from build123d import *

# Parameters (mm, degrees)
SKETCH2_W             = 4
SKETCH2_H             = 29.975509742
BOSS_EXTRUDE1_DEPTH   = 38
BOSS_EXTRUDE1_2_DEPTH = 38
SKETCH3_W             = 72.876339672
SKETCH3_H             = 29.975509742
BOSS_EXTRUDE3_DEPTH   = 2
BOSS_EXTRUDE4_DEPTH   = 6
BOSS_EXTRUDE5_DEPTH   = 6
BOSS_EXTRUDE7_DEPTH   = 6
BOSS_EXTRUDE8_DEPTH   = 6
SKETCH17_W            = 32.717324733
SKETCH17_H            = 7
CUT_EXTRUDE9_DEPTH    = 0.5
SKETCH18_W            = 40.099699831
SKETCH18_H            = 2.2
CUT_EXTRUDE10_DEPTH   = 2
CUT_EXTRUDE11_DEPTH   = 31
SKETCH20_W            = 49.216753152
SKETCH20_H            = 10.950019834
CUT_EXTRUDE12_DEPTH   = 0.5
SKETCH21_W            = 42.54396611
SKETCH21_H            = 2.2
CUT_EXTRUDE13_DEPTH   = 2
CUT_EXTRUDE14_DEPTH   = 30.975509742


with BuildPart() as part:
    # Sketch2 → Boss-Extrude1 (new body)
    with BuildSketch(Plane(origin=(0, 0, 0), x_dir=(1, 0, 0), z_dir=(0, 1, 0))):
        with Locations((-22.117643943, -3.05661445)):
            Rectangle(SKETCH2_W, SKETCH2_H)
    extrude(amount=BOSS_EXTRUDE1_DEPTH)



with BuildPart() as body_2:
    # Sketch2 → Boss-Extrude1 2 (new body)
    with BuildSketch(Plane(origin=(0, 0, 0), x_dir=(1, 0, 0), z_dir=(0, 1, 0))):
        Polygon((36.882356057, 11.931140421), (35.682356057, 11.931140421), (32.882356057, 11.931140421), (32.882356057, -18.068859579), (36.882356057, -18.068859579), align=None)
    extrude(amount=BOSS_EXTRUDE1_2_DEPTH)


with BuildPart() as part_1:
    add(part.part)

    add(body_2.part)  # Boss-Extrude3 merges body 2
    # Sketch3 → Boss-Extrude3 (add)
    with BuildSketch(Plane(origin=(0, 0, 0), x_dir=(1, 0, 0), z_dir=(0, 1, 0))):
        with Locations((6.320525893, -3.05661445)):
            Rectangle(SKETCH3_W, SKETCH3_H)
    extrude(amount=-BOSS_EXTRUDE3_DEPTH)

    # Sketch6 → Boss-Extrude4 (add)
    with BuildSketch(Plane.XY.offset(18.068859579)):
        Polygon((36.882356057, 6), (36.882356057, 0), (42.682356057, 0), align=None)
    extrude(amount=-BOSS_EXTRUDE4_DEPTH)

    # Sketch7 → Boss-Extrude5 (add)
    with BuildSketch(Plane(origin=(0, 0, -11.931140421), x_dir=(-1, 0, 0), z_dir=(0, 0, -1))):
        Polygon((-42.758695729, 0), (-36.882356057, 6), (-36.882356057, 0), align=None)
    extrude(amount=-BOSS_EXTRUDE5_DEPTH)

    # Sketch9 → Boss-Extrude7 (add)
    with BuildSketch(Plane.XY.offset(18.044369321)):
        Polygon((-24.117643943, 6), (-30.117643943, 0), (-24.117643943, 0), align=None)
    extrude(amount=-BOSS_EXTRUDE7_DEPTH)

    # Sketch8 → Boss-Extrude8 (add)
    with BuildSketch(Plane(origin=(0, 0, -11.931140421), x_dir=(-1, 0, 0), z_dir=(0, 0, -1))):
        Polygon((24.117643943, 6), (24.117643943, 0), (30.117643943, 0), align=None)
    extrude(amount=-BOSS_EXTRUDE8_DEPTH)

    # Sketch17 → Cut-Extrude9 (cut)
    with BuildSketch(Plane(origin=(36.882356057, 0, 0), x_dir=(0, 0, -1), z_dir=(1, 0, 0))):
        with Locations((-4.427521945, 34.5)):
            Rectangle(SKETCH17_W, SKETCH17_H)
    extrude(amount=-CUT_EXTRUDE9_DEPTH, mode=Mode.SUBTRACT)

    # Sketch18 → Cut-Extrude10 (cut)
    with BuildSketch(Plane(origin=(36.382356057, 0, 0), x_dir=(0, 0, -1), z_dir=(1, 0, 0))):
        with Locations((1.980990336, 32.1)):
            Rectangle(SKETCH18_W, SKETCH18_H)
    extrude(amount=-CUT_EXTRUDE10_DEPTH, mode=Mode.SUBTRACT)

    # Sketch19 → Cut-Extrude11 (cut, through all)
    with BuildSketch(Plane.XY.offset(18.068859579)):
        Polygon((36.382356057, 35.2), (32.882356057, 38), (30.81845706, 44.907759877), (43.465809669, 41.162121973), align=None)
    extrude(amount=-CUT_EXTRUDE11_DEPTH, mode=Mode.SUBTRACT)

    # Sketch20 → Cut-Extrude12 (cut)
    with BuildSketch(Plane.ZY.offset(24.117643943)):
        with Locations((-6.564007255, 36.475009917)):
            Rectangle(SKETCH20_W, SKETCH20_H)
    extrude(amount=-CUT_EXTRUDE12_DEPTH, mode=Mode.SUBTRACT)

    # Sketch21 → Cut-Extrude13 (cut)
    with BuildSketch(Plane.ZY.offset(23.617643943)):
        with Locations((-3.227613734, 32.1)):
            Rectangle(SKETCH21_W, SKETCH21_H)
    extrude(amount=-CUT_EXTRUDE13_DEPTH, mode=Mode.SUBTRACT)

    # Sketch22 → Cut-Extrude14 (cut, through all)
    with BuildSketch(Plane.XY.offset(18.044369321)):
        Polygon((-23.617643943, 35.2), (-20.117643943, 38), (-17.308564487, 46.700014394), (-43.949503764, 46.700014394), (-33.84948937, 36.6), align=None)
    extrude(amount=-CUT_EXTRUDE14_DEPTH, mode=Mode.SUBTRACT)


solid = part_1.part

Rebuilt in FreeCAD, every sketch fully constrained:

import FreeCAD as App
import Part
import Sketcher
from FreeCAD import Vector
Q = App.Units.Quantity


def add_polygon(sketch, points):
    """Adds a closed chain of lines whose ends are joined by coincident constraints."""
    first, n = sketch.GeometryCount, len(points)
    for a, b in zip(points, points[1:] + points[:1]):
        sketch.addGeometry(Part.LineSegment(App.Vector(*a, 0), App.Vector(*b, 0)), False)
    for i in range(n):
        sketch.addConstraint(Sketcher.Constraint("Coincident", first + i, 2, first + (i + 1) % n, 1))

doc = App.newDocument("Part")
body = doc.addObject("PartDesign::Body", "Body")

sketch1 = body.newObject("Sketcher::SketchObject", "Sketch")
sketch1.AttachmentSupport = (doc.getObject("XZ_Plane"), [""])
sketch1.MapMode = "FlatFace"
add_polygon(sketch1, [(-24.1, -11.9), (-24.1, 18), (-20.1, 18), (-20.1, -11.9)])
sketch1.addConstraint([
    Sketcher.Constraint("Vertical", 0),
    Sketcher.Constraint("Horizontal", 1),
    Sketcher.Constraint("Vertical", 2),
    Sketcher.Constraint("Horizontal", 3),
    Sketcher.Constraint("DistanceX", 1, 1, 1, 2, Q("4 mm")),
    Sketcher.Constraint("DistanceY", 0, 1, 0, 2, Q("29.97551 mm")),
    Sketcher.Constraint("DistanceY", -1, 1, 0, 2, Q("18.044369 mm")),
    Sketcher.Constraint("DistanceX", 0, 2, -1, 1, Q("24.117644 mm")),
])
pad1 = body.newObject("PartDesign::Pad", "Pad")
pad1.Profile = sketch1
pad1.Length = 38
pad1.Reversed = True
body2 = doc.addObject("PartDesign::Body", "Body001")

sketch2 = body2.newObject("Sketcher::SketchObject", "Sketch001")
sketch2.AttachmentSupport = (doc.getObject("XZ_Plane001"), [""])
sketch2.MapMode = "FlatFace"
add_polygon(sketch2, [(36.9, -11.9), (32.9, -11.9), (32.9, 18.1), (36.9, 18.1)])
sketch2.addConstraint([
    Sketcher.Constraint("Horizontal", 0),
    Sketcher.Constraint("Vertical", 1),
    Sketcher.Constraint("Horizontal", 2),
    Sketcher.Constraint("Vertical", 3),
    Sketcher.Constraint("DistanceX", 0, 2, 0, 1, Q("4 mm")),
    Sketcher.Constraint("DistanceY", 1, 1, 1, 2, Q("30 mm")),
    Sketcher.Constraint("DistanceY", 0, 2, -1, 1, Q("11.93114 mm")),
    Sketcher.Constraint("DistanceX", -1, 1, 0, 2, Q("32.882356 mm")),
])
pad2 = body2.newObject("PartDesign::Pad", "Pad001")
pad2.Profile = sketch2
pad2.Length = 38
pad2.Reversed = True
body.AllowCompound = True
doc.recompute()

boolean = body.newObject("PartDesign::Boolean", "Boolean")
boolean.Type = "Fuse"
boolean.addObjects([body2])

sketch3 = body.newObject("Sketcher::SketchObject", "Sketch002")
sketch3.AttachmentSupport = (doc.getObject("XZ_Plane"), [""])
sketch3.MapMode = "FlatFace"
add_polygon(sketch3, [(-30, -12), (-30, 18), (43, 18), (43, -12)])
sketch3.addConstraint([
    Sketcher.Constraint("Vertical", 0),
    Sketcher.Constraint("Horizontal", 1),
    Sketcher.Constraint("Vertical", 2),
    Sketcher.Constraint("Horizontal", 3),
    Sketcher.Constraint("DistanceX", 1, 1, 1, 2, Q("72.87634 mm")),
    Sketcher.Constraint("DistanceY", 0, 1, 0, 2, Q("29.97551 mm")),
    Sketcher.Constraint("DistanceY", -1, 1, 0, 2, Q("18.044369 mm")),
    Sketcher.Constraint("DistanceX", 0, 2, -1, 1, Q("30.117644 mm")),
])
pad3 = body.newObject("PartDesign::Pad", "Pad002")
pad3.Profile = sketch3
pad3.Length = 2

sketch4 = body.newObject("Sketcher::SketchObject", "Sketch003")
sketch4.AttachmentSupport = (doc.getObject("XY_Plane"), [""])
sketch4.MapMode = "FlatFace"
sketch4.AttachmentOffset = App.Placement(Vector(0, 0, 18.06886), App.Rotation())
add_polygon(sketch4, [(37, 6), (37, 0), (43, 0)])
sketch4.addConstraint([
    Sketcher.Constraint("Vertical", 0),
    Sketcher.Constraint("Horizontal", 1),
    Sketcher.Constraint("PointOnObject", 0, 2, -1),
    Sketcher.Constraint("DistanceY", 0, 2, 0, 1, Q("6 mm")),
    Sketcher.Constraint("DistanceX", 1, 1, 1, 2, Q("5.8 mm")),
    Sketcher.Constraint("DistanceX", -1, 1, 0, 2, Q("36.882356 mm")),
])
pad4 = body.newObject("PartDesign::Pad", "Pad003")
pad4.Profile = sketch4
pad4.Length = 6
pad4.Reversed = True

sketch5 = body.newObject("Sketcher::SketchObject", "Sketch004")
sketch5.AttachmentSupport = (doc.getObject("XY_Plane"), [""])
sketch5.MapMode = "FlatFace"
sketch5.AttachmentOffset = App.Placement(Vector(0, 0, -11.93114), App.Rotation())
add_polygon(sketch5, [(37, 6), (43, 0), (37, 0)])
sketch5.addConstraint([
    Sketcher.Constraint("Horizontal", 1),
    Sketcher.Constraint("Vertical", 2),
    Sketcher.Constraint("PointOnObject", 0, 2, -1),
    Sketcher.Constraint("DistanceY", 2, 1, 2, 2, Q("6 mm")),
    Sketcher.Constraint("DistanceX", 1, 2, 1, 1, Q("5.87634 mm")),
    Sketcher.Constraint("DistanceX", -1, 1, 0, 2, Q("42.758696 mm")),
])
pad5 = body.newObject("PartDesign::Pad", "Pad004")
pad5.Profile = sketch5
pad5.Length = 6

sketch6 = body.newObject("Sketcher::SketchObject", "Sketch005")
sketch6.AttachmentSupport = (doc.getObject("XY_Plane"), [""])
sketch6.MapMode = "FlatFace"
sketch6.AttachmentOffset = App.Placement(Vector(0, 0, 18.044369), App.Rotation())
add_polygon(sketch6, [(-24, 6), (-30, 0), (-24, 0)])
sketch6.addConstraint([
    Sketcher.Constraint("Horizontal", 1),
    Sketcher.Constraint("Vertical", 2),
    Sketcher.Constraint("PointOnObject", 0, 2, -1),
    Sketcher.Constraint("Equal", 1, 2),
    Sketcher.Constraint("DistanceX", 1, 1, 1, 2, Q("6 mm")),
    Sketcher.Constraint("DistanceX", 0, 2, -1, 1, Q("30.117644 mm")),
])
pad6 = body.newObject("PartDesign::Pad", "Pad005")
pad6.Profile = sketch6
pad6.Length = 6
pad6.Reversed = True

sketch7 = body.newObject("Sketcher::SketchObject", "Sketch006")
sketch7.AttachmentSupport = (doc.getObject("XY_Plane"), [""])
sketch7.MapMode = "FlatFace"
sketch7.AttachmentOffset = App.Placement(Vector(0, 0, -11.93114), App.Rotation())
add_polygon(sketch7, [(-24, 6), (-24, 0), (-30, 0)])
sketch7.addConstraint([
    Sketcher.Constraint("Vertical", 0),
    Sketcher.Constraint("Horizontal", 1),
    Sketcher.Constraint("PointOnObject", 0, 2, -1),
    Sketcher.Constraint("Equal", 1, 0),
    Sketcher.Constraint("DistanceX", 1, 2, 1, 1, Q("6 mm")),
    Sketcher.Constraint("DistanceX", 0, 2, -1, 1, Q("24.117644 mm")),
])
pad7 = body.newObject("PartDesign::Pad", "Pad006")
pad7.Profile = sketch7
pad7.Length = 6

sketch8 = body.newObject("Sketcher::SketchObject", "Sketch007")
sketch8.AttachmentSupport = (doc.getObject("YZ_Plane"), [""])
sketch8.MapMode = "FlatFace"
sketch8.AttachmentOffset = App.Placement(Vector(0, 0, 36.882356), App.Rotation())
add_polygon(sketch8, [(38, 21), (31, 21), (31, -12), (38, -12)])
sketch8.addConstraint([
    Sketcher.Constraint("Horizontal", 0),
    Sketcher.Constraint("Vertical", 1),
    Sketcher.Constraint("Horizontal", 2),
    Sketcher.Constraint("Vertical", 3),
    Sketcher.Constraint("DistanceX", 0, 2, 0, 1, Q("7 mm")),
    Sketcher.Constraint("DistanceX", -1, 1, 0, 2, Q("31 mm")),
    Sketcher.Constraint("DistanceY", 1, 2, 1, 1, Q("32.717325 mm")),
    Sketcher.Constraint("DistanceY", 1, 2, -1, 1, Q("11.93114 mm")),
])
pocket1 = body.newObject("PartDesign::Pocket", "Pocket")
pocket1.Profile = sketch8
pocket1.Length = 0.5

sketch9 = body.newObject("Sketcher::SketchObject", "Sketch008")
sketch9.AttachmentSupport = (doc.getObject("YZ_Plane"), [""])
sketch9.MapMode = "FlatFace"
sketch9.AttachmentOffset = App.Placement(Vector(0, 0, 36.382356), App.Rotation())
add_polygon(sketch9, [(33.2, 18.1), (31, 18.1), (31, -22), (33.2, -22)])
sketch9.addConstraint([
    Sketcher.Constraint("Horizontal", 0),
    Sketcher.Constraint("Vertical", 1),
    Sketcher.Constraint("Horizontal", 2),
    Sketcher.Constraint("Vertical", 3),
    Sketcher.Constraint("DistanceX", 0, 2, 0, 1, Q("2.2 mm")),
    Sketcher.Constraint("DistanceX", -1, 1, 0, 2, Q("31 mm")),
    Sketcher.Constraint("DistanceY", 1, 2, 1, 1, Q("40.0997 mm")),
    Sketcher.Constraint("DistanceY", -1, 1, 0, 2, Q("18.06886 mm")),
])
pocket2 = body.newObject("PartDesign::Pocket", "Pocket001")
pocket2.Profile = sketch9
pocket2.Length = 2

sketch10 = body.newObject("Sketcher::SketchObject", "Sketch009")
sketch10.AttachmentSupport = (doc.getObject("XY_Plane"), [""])
sketch10.MapMode = "FlatFace"
sketch10.AttachmentOffset = App.Placement(Vector(0, 0, 18.06886), App.Rotation())
add_polygon(sketch10, [(32.9, 38), (36.4, 35.2), (43.5, 41.2), (30.8, 44.9)])
sketch10.addConstraint([
    Sketcher.Constraint("DistanceY", -1, 1, 3, 2, Q("38 mm")),
    Sketcher.Constraint("DistanceY", -1, 1, 0, 2, Q("35.2 mm")),
    Sketcher.Constraint("DistanceX", 3, 2, 0, 2, Q("3.5 mm")),
    Sketcher.Constraint("DistanceX", 2, 2, 0, 2, Q("5.563899 mm")),
    Sketcher.Constraint("Distance", 1, Q("9.258629 mm")),
    Sketcher.Constraint("Distance", 2, Q("13.19035 mm")),
    Sketcher.Constraint("DistanceX", -1, 1, 1, 2, Q("43.46581 mm")),
    Sketcher.Constraint("DistanceY", -1, 1, 1, 2, Q("41.162122 mm")),
])
pocket3 = body.newObject("PartDesign::Pocket", "Pocket002")
pocket3.Profile = sketch10
pocket3.Type = "ThroughAll"

sketch11 = body.newObject("Sketcher::SketchObject", "Sketch010")
sketch11.AttachmentSupport = (doc.getObject("YZ_Plane"), [""])
sketch11.MapMode = "FlatFace"
sketch11.AttachmentOffset = App.Placement(Vector(0, 0, -24.117644), App.Rotation())
add_polygon(sketch11, [(42, -31), (31, -31), (31, 18), (42, 18)])
sketch11.addConstraint([
    Sketcher.Constraint("Horizontal", 0),
    Sketcher.Constraint("Vertical", 1),
    Sketcher.Constraint("Horizontal", 2),
    Sketcher.Constraint("Vertical", 3),
    Sketcher.Constraint("DistanceX", -1, 1, 0, 2, Q("31 mm")),
    Sketcher.Constraint("DistanceX", 0, 2, 0, 1, Q("10.95002 mm")),
    Sketcher.Constraint("DistanceY", 1, 1, 1, 2, Q("49.216753 mm")),
    Sketcher.Constraint("DistanceY", -1, 1, 1, 2, Q("18.044369 mm")),
])
pocket4 = body.newObject("PartDesign::Pocket", "Pocket003")
pocket4.Profile = sketch11
pocket4.Length = 0.5
pocket4.Reversed = True

sketch12 = body.newObject("Sketcher::SketchObject", "Sketch011")
sketch12.AttachmentSupport = (doc.getObject("YZ_Plane"), [""])
sketch12.MapMode = "FlatFace"
sketch12.AttachmentOffset = App.Placement(Vector(0, 0, -23.617644), App.Rotation())
add_polygon(sketch12, [(33.2, -24.5), (31, -24.5), (31, 18), (33.2, 18)])
sketch12.addConstraint([
    Sketcher.Constraint("Horizontal", 0),
    Sketcher.Constraint("Vertical", 1),
    Sketcher.Constraint("Horizontal", 2),
    Sketcher.Constraint("Vertical", 3),
    Sketcher.Constraint("DistanceX", 0, 2, 0, 1, Q("2.2 mm")),
    Sketcher.Constraint("DistanceX", -1, 1, 0, 2, Q("31 mm")),
    Sketcher.Constraint("DistanceY", 1, 1, 1, 2, Q("42.543966 mm")),
    Sketcher.Constraint("DistanceY", -1, 1, 1, 2, Q("18.044369 mm")),
])
pocket5 = body.newObject("PartDesign::Pocket", "Pocket004")
pocket5.Profile = sketch12
pocket5.Length = 2
pocket5.Reversed = True

sketch13 = body.newObject("Sketcher::SketchObject", "Sketch012")
sketch13.AttachmentSupport = (doc.getObject("XY_Plane"), [""])
sketch13.MapMode = "FlatFace"
sketch13.AttachmentOffset = App.Placement(Vector(0, 0, 18.044369), App.Rotation())
add_polygon(sketch13, [(-23.6, 35.2), (-20.1, 38), (-17.3, 46.7), (-43.9, 46.7), (-33.8, 36.6)])
sketch13.addConstraint([
    Sketcher.Constraint("Horizontal", 2),
    Sketcher.Constraint("Angle", 3, Q("-45 deg")),
    Sketcher.Constraint("DistanceY", -1, 1, 0, 2, Q("38 mm")),
    Sketcher.Constraint("DistanceY", -1, 1, 3, 2, Q("36.6 mm")),
    Sketcher.Constraint("DistanceY", -1, 1, 4, 2, Q("35.2 mm")),
    Sketcher.Constraint("DistanceX", 4, 2, 0, 2, Q("3.5 mm")),
    Sketcher.Constraint("DistanceX", 2, 2, 2, 1, Q("26.640939 mm")),
    Sketcher.Constraint("Distance", 4, Q("10.327181 mm")),
    Sketcher.Constraint("DistanceX", 3, 2, -1, 1, Q("33.849489 mm")),
    Sketcher.Constraint("DistanceX", 0, 2, 1, 2, Q("2.809079 mm")),
])
pocket6 = body.newObject("PartDesign::Pocket", "Pocket005")
pocket6.Profile = sketch13
pocket6.Type = "ThroughAll"

doc.recompute()
